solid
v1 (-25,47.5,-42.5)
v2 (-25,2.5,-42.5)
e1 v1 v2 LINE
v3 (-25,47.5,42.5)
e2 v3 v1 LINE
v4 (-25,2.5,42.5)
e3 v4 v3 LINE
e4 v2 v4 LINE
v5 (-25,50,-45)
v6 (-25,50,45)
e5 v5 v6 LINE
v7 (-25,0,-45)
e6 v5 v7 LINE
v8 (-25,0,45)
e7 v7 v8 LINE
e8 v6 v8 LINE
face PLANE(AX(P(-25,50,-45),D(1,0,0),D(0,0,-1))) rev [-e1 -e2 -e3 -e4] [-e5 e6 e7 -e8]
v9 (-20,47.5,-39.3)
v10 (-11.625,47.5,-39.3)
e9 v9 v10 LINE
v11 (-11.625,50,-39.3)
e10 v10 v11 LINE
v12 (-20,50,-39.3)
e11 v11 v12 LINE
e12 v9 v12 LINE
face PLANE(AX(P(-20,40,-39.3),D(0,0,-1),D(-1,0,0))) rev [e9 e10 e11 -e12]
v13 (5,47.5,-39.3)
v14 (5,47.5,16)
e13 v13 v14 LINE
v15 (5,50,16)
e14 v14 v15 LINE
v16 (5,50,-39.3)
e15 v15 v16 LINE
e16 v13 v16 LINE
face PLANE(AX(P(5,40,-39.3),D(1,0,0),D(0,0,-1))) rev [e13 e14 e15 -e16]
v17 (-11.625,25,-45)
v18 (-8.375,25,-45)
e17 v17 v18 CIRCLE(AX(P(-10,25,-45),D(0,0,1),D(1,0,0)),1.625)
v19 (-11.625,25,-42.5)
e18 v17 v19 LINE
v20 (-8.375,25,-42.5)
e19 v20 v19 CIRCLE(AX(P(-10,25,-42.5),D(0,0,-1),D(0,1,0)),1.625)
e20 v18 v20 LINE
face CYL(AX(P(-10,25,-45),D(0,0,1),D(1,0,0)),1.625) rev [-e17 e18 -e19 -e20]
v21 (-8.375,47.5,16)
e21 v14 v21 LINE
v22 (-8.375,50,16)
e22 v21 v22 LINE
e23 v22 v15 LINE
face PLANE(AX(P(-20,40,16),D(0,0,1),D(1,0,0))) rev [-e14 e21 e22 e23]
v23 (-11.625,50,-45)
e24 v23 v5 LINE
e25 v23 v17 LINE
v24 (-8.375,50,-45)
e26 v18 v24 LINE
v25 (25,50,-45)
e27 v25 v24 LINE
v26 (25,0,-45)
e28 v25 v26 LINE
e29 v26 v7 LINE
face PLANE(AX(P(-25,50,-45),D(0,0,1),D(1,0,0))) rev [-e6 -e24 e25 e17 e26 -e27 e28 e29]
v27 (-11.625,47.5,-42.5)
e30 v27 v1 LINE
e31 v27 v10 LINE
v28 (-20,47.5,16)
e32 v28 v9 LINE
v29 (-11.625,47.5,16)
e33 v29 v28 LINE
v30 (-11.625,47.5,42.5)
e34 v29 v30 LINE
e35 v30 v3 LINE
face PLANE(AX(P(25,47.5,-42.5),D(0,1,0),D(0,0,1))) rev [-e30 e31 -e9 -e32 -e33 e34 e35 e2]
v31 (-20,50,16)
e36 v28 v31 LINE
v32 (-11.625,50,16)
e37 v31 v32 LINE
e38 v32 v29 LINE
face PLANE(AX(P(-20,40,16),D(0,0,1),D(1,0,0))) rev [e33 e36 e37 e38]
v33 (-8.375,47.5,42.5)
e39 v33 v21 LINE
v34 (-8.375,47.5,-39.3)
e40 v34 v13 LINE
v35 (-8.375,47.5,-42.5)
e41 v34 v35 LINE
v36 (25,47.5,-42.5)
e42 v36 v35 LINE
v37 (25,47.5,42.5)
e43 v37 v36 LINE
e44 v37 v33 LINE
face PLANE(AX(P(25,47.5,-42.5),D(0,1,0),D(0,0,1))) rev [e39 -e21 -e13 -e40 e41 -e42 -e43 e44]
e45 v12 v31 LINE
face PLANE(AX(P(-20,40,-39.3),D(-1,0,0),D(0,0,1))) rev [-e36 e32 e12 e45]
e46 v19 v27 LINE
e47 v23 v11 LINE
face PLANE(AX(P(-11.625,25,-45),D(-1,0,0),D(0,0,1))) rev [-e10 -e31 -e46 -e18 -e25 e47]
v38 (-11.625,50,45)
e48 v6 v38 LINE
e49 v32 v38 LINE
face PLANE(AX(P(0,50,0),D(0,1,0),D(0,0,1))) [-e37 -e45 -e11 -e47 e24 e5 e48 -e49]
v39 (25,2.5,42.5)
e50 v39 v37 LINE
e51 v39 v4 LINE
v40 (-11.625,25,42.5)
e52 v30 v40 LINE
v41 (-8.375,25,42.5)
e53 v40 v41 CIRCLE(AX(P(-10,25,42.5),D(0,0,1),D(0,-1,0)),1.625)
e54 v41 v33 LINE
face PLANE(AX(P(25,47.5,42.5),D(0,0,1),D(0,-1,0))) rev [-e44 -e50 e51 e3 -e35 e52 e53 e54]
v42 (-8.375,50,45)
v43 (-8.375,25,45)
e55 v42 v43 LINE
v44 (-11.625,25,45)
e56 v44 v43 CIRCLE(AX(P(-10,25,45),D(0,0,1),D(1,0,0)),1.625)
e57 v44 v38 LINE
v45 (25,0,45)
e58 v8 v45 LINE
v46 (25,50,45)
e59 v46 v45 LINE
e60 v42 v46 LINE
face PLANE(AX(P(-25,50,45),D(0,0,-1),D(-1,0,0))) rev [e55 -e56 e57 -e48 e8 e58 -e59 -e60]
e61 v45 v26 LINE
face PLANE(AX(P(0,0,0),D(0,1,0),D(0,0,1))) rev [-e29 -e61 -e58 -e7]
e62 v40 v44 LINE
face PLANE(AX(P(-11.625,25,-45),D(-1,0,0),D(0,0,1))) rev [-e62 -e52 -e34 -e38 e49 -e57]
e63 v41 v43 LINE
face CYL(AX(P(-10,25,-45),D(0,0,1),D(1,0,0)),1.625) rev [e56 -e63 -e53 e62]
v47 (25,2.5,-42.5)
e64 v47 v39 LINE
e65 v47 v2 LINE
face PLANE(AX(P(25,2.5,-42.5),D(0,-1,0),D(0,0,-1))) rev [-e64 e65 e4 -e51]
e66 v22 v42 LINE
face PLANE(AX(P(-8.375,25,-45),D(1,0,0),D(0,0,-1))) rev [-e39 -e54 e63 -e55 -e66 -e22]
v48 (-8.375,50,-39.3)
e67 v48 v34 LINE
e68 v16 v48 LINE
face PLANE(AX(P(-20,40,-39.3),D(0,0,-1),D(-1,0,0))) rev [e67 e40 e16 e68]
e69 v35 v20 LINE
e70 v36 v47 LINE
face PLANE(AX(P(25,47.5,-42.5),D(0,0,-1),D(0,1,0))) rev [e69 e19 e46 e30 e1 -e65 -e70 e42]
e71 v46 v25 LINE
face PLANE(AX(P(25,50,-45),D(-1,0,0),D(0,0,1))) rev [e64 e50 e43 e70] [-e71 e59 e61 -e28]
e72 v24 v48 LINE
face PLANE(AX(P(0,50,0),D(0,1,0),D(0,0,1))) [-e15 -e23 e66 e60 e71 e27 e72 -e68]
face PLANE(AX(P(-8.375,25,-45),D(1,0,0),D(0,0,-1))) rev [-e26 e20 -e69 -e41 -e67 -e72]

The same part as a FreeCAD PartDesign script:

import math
import FreeCAD as App
import Part
import Sketcher

V = App.Vector
Q = App.Units.Quantity

doc = App.newDocument("Part")
body = doc.addObject("PartDesign::Body", "Body")

# Sketch on XZ plane
sketch1 = body.newObject("Sketcher::SketchObject", "Sketch")
sketch1.AttachmentSupport = (doc.getObject("XZ_Plane"), [""])
sketch1.MapMode = "FlatFace"
sketch1.addGeometry([
    Part.LineSegment(V(-25, -45, 0), V(-25, 45, 0)),
    Part.LineSegment(V(-25, 45, 0), V(25, 45, 0)),
    Part.LineSegment(V(25, 45, 0), V(25, -45, 0)),
    Part.LineSegment(V(25, -45, 0), V(-25, -45, 0)),
], False)
sketch1.addConstraint([
    Sketcher.Constraint("Coincident", 0, 2, 1, 1),
    Sketcher.Constraint("Coincident", 1, 2, 2, 1),
    Sketcher.Constraint("Coincident", 2, 2, 3, 1),
    Sketcher.Constraint("Coincident", 3, 2, 0, 1),
    Sketcher.Constraint("Vertical", 0),
    Sketcher.Constraint("Horizontal", 1),
    Sketcher.Constraint("Vertical", 2),
    Sketcher.Constraint("Horizontal", 3),
    Sketcher.Constraint("Symmetric", 0, 2, 2, 2, -1, 1),
    Sketcher.Constraint("DistanceX", 1, 1, 1, 2, Q("50 mm")),
    Sketcher.Constraint("DistanceY", 0, 1, 0, 2, Q("90 mm")),
])
pad1 = body.newObject("PartDesign::Pad", "Pad")
pad1.Profile = sketch1
pad1.Length = 50
pad1.Reversed = True

# Sketch on XZ plane
sketch2 = body.newObject("Sketcher::SketchObject", "Sketch001")
sketch2.AttachmentSupport = (doc.getObject("XZ_Plane"), [""])
sketch2.MapMode = "FlatFace"
sketch2.AttachmentOffset = App.Placement(V(0, 0, -50), App.Rotation())
sketch2.addGeometry([
    Part.LineSegment(V(-20, -39, 0), V(-20, 16, 0)),
    Part.LineSegment(V(-20, 16, 0), V(5, 16, 0)),
    Part.LineSegment(V(5, 16, 0), V(5, -39, 0)),
    Part.LineSegment(V(5, -39, 0), V(-20, -39, 0)),
], False)
sketch2.addConstraint([
    Sketcher.Constraint("Coincident", 0, 2, 1, 1),
    Sketcher.Constraint("Coincident", 1, 2, 2, 1),
    Sketcher.Constraint("Coincident", 2, 2, 3, 1),
    Sketcher.Constraint("Coincident", 3, 2, 0, 1),
    Sketcher.Constraint("Vertical", 0),
    Sketcher.Constraint("Horizontal", 1),
    Sketcher.Constraint("Vertical", 2),
    Sketcher.Constraint("Horizontal", 3),
    Sketcher.Constraint("DistanceX", 1, 1, 1, 2, Q("25 mm")),
    Sketcher.Constraint("DistanceY", 0, 1, 0, 2, Q("55.3 mm")),
    Sketcher.Constraint("DistanceX", 0, 2, -1, 1, Q("20 mm")),
    Sketcher.Constraint("DistanceY", -1, 1, 0, 2, Q("16 mm")),
])
pocket1 = body.newObject("PartDesign::Pocket", "Pocket")
pocket1.Profile = sketch2
pocket1.Length = 10
pocket1.Reversed = True

# Sketch on YZ plane
sketch3 = body.newObject("Sketcher::SketchObject", "Sketch002")
sketch3.AttachmentSupport = (doc.getObject("YZ_Plane"), [""])
sketch3.MapMode = "FlatFace"
sketch3.AttachmentOffset = App.Placement(V(0, 0, -25), App.Rotation())
sketch3.addGeometry([
    Part.LineSegment(V(48, -42, 0), V(2, -42, 0)),
    Part.LineSegment(V(2, -42, 0), V(2, 42, 0)),
    Part.LineSegment(V(2, 42, 0), V(48, 42, 0)),
    Part.LineSegment(V(48, 42, 0), V(48, -42, 0)),
], False)
sketch3.addConstraint([
    Sketcher.Constraint("Coincident", 0, 2, 1, 1),
    Sketcher.Constraint("Coincident", 1, 2, 2, 1),
    Sketcher.Constraint("Coincident", 2, 2, 3, 1),
    Sketcher.Constraint("Coincident", 3, 2, 0, 1),
    Sketcher.Constraint("Horizontal", 0),
    Sketcher.Constraint("Vertical", 1),
    Sketcher.Constraint("Horizontal", 2),
    Sketcher.Constraint("Vertical", 3),
    Sketcher.Constraint("DistanceX", 0, 2, 0, 1, Q("45 mm")),
    Sketcher.Constraint("DistanceY", 1, 1, 1, 2, Q("85 mm")),
    Sketcher.Constraint("DistanceX", -1, 1, 0, 2, Q("2.5 mm")),
    Sketcher.Constraint("DistanceY", 0, 2, -1, 1, Q("42.5 mm")),
])
pocket2 = body.newObject("PartDesign::Pocket", "Pocket001")
pocket2.Profile = sketch3
pocket2.Type = "ThroughAll"
pocket2.Reversed = True

# Sketch on XY plane
sketch4 = body.newObject("Sketcher::SketchObject", "Sketch003")
sketch4.AttachmentSupport = (doc.getObject("XY_Plane"), [""])
sketch4.MapMode = "FlatFace"
sketch4.AttachmentOffset = App.Placement(V(0, 0, 45), App.Rotation())
sketch4.addGeometry([
    Part.LineSegment(V(-11.6, 50, 0), V(-11.6, 25, 0)),
    Part.ArcOfCircle(Part.Circle(V(-10, 25, 0), V(0, 0, 1), 1.6), math.radians(180), math.radians(360)),
    Part.LineSegment(V(-8.4, 25, 0), V(-8.4, 50, 0)),
    Part.LineSegment(V(-8.4, 50, 0), V(-11.6, 50, 0)),
], False)
sketch4.addConstraint([
    Sketcher.Constraint("Tangent", 0, 2, 1, 1),
    Sketcher.Constraint("Tangent", 1, 2, 2, 1),
    Sketcher.Constraint("Coincident", 2, 2, 3, 1),
    Sketcher.Constraint("Coincident", 3, 2, 0, 1),
    Sketcher.Constraint("Vertical", 0),
    Sketcher.Constraint("Vertical", 2),
    Sketcher.Constraint("Horizontal", 3),
    Sketcher.Constraint("DistanceY", 0, 2, 0, 1, Q("25 mm")),
    Sketcher.Constraint("DistanceX", 1, 3, -1, 1, Q("10 mm")),
    Sketcher.Constraint("DistanceY", -1, 1, 1, 3, Q("25 mm")),
    Sketcher.Constraint("Radius", 1, Q("1.625 mm")),
])
pocket3 = body.newObject("PartDesign::Pocket", "Pocket002")
pocket3.Profile = sketch4
pocket3.Type = "ThroughAll"
pocket3.Midplane = True

doc.recompute()
